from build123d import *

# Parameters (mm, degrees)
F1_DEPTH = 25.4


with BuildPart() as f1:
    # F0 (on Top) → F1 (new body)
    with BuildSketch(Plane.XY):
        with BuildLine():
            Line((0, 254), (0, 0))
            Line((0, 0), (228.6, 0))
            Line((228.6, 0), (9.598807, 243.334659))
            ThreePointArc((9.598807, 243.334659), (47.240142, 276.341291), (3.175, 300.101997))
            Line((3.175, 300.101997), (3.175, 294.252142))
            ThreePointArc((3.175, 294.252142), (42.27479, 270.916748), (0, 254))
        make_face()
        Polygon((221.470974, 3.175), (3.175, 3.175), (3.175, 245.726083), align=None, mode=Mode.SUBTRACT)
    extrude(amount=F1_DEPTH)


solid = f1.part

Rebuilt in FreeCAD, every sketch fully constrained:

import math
import FreeCAD as App
import Part
import Sketcher
Q = App.Units.Quantity

doc = App.newDocument("Part")
body = doc.addObject("PartDesign::Body", "Body")

sketch1 = doc.addObject("Sketcher::SketchObject", "Sketch")
body.addObject(sketch1)
sketch1.AttachmentSupport = (doc.XY_Plane, [""])
sketch1.MapMode = "FlatFace"
sketch1.addGeometry([
    Part.LineSegment(App.Vector(0, 254, 0), App.Vector(0, 0, 0)),
    Part.LineSegment(App.Vector(0, 0, 0), App.Vector(229, 0, 0)),
    Part.LineSegment(App.Vector(229, 0, 0), App.Vector(10, 243, 0)),
    Part.ArcOfCircle(Part.Circle(App.Vector(17, 273, 0), App.Vector(0, 0, 1), 30), math.radians(-104), math.radians(117)),
    Part.LineSegment(App.Vector(3, 300, 0), App.Vector(3, 294, 0)),
    Part.ArcOfCircle(Part.Circle(App.Vector(17, 273, 0), App.Vector(0, 0, 1), 25), math.radians(-132), math.radians(123)),
    Part.LineSegment(App.Vector(3, 246, 0), App.Vector(221, 3, 0)),
    Part.LineSegment(App.Vector(221, 3, 0), App.Vector(3, 3, 0)),
    Part.LineSegment(App.Vector(3, 3, 0), App.Vector(3, 246, 0)),
], False)
sketch1.addConstraint([
    Sketcher.Constraint("Coincident", 0, 2, 1, 1),
    Sketcher.Constraint("Coincident", 1, 2, 2, 1),
    Sketcher.Constraint("Coincident", 2, 2, 3, 1),
    Sketcher.Constraint("Coincident", 3, 2, 4, 1),
    Sketcher.Constraint("Coincident", 4, 2, 5, 2),
    Sketcher.Constraint("Coincident", 5, 1, 0, 1),
    Sketcher.Constraint("Coincident", 6, 2, 7, 1),
    Sketcher.Constraint("Coincident", 7, 2, 8, 1),
    Sketcher.Constraint("Coincident", 8, 2, 6, 1),
    Sketcher.Constraint("Vertical", 0),
    Sketcher.Constraint("Horizontal", 1),
    Sketcher.Constraint("Vertical", 4),
    Sketcher.Constraint("Horizontal", 7),
    Sketcher.Constraint("Vertical", 8),
    Sketcher.Constraint("Coincident", 0, 2, -1, 1),
    Sketcher.Constraint("Coincident", 5, 3, 3, 3),
    Sketcher.Constraint("Parallel", 2, 6),
    Sketcher.Constraint("Vertical", 4, 2, 7, 2),
    Sketcher.Constraint("Radius", 5, Q("1 in")),
    Sketcher.Constraint("Radius", 3, Q("1.2 in")),
    Sketcher.Constraint("DistanceX", 1, 1, 1, 2, Q("9 in")),
    Sketcher.Constraint("DistanceY", 0, 2, 0, 1, Q("10 in")),
    Sketcher.Constraint("DistanceX", -1, 1, 3, 2, Q("0.125 in")),
    Sketcher.Constraint("DistanceY", -1, 1, 6, 2, Q("0.125 in")),
    Sketcher.Constraint("Distance", 2, Q("327.373302 mm")),
    Sketcher.Constraint("DistanceY", 3, 3, 4, 2, Q("21.338102 mm")),
    Sketcher.Constraint("DistanceX", 7, 2, 7, 1, Q("218.295974 mm")),
])
pad1 = doc.addObject("PartDesign::Pad", "Pad")
body.addObject(pad1)
pad1.Profile = sketch1
pad1.Length = Q("1 in")

doc.recompute()
